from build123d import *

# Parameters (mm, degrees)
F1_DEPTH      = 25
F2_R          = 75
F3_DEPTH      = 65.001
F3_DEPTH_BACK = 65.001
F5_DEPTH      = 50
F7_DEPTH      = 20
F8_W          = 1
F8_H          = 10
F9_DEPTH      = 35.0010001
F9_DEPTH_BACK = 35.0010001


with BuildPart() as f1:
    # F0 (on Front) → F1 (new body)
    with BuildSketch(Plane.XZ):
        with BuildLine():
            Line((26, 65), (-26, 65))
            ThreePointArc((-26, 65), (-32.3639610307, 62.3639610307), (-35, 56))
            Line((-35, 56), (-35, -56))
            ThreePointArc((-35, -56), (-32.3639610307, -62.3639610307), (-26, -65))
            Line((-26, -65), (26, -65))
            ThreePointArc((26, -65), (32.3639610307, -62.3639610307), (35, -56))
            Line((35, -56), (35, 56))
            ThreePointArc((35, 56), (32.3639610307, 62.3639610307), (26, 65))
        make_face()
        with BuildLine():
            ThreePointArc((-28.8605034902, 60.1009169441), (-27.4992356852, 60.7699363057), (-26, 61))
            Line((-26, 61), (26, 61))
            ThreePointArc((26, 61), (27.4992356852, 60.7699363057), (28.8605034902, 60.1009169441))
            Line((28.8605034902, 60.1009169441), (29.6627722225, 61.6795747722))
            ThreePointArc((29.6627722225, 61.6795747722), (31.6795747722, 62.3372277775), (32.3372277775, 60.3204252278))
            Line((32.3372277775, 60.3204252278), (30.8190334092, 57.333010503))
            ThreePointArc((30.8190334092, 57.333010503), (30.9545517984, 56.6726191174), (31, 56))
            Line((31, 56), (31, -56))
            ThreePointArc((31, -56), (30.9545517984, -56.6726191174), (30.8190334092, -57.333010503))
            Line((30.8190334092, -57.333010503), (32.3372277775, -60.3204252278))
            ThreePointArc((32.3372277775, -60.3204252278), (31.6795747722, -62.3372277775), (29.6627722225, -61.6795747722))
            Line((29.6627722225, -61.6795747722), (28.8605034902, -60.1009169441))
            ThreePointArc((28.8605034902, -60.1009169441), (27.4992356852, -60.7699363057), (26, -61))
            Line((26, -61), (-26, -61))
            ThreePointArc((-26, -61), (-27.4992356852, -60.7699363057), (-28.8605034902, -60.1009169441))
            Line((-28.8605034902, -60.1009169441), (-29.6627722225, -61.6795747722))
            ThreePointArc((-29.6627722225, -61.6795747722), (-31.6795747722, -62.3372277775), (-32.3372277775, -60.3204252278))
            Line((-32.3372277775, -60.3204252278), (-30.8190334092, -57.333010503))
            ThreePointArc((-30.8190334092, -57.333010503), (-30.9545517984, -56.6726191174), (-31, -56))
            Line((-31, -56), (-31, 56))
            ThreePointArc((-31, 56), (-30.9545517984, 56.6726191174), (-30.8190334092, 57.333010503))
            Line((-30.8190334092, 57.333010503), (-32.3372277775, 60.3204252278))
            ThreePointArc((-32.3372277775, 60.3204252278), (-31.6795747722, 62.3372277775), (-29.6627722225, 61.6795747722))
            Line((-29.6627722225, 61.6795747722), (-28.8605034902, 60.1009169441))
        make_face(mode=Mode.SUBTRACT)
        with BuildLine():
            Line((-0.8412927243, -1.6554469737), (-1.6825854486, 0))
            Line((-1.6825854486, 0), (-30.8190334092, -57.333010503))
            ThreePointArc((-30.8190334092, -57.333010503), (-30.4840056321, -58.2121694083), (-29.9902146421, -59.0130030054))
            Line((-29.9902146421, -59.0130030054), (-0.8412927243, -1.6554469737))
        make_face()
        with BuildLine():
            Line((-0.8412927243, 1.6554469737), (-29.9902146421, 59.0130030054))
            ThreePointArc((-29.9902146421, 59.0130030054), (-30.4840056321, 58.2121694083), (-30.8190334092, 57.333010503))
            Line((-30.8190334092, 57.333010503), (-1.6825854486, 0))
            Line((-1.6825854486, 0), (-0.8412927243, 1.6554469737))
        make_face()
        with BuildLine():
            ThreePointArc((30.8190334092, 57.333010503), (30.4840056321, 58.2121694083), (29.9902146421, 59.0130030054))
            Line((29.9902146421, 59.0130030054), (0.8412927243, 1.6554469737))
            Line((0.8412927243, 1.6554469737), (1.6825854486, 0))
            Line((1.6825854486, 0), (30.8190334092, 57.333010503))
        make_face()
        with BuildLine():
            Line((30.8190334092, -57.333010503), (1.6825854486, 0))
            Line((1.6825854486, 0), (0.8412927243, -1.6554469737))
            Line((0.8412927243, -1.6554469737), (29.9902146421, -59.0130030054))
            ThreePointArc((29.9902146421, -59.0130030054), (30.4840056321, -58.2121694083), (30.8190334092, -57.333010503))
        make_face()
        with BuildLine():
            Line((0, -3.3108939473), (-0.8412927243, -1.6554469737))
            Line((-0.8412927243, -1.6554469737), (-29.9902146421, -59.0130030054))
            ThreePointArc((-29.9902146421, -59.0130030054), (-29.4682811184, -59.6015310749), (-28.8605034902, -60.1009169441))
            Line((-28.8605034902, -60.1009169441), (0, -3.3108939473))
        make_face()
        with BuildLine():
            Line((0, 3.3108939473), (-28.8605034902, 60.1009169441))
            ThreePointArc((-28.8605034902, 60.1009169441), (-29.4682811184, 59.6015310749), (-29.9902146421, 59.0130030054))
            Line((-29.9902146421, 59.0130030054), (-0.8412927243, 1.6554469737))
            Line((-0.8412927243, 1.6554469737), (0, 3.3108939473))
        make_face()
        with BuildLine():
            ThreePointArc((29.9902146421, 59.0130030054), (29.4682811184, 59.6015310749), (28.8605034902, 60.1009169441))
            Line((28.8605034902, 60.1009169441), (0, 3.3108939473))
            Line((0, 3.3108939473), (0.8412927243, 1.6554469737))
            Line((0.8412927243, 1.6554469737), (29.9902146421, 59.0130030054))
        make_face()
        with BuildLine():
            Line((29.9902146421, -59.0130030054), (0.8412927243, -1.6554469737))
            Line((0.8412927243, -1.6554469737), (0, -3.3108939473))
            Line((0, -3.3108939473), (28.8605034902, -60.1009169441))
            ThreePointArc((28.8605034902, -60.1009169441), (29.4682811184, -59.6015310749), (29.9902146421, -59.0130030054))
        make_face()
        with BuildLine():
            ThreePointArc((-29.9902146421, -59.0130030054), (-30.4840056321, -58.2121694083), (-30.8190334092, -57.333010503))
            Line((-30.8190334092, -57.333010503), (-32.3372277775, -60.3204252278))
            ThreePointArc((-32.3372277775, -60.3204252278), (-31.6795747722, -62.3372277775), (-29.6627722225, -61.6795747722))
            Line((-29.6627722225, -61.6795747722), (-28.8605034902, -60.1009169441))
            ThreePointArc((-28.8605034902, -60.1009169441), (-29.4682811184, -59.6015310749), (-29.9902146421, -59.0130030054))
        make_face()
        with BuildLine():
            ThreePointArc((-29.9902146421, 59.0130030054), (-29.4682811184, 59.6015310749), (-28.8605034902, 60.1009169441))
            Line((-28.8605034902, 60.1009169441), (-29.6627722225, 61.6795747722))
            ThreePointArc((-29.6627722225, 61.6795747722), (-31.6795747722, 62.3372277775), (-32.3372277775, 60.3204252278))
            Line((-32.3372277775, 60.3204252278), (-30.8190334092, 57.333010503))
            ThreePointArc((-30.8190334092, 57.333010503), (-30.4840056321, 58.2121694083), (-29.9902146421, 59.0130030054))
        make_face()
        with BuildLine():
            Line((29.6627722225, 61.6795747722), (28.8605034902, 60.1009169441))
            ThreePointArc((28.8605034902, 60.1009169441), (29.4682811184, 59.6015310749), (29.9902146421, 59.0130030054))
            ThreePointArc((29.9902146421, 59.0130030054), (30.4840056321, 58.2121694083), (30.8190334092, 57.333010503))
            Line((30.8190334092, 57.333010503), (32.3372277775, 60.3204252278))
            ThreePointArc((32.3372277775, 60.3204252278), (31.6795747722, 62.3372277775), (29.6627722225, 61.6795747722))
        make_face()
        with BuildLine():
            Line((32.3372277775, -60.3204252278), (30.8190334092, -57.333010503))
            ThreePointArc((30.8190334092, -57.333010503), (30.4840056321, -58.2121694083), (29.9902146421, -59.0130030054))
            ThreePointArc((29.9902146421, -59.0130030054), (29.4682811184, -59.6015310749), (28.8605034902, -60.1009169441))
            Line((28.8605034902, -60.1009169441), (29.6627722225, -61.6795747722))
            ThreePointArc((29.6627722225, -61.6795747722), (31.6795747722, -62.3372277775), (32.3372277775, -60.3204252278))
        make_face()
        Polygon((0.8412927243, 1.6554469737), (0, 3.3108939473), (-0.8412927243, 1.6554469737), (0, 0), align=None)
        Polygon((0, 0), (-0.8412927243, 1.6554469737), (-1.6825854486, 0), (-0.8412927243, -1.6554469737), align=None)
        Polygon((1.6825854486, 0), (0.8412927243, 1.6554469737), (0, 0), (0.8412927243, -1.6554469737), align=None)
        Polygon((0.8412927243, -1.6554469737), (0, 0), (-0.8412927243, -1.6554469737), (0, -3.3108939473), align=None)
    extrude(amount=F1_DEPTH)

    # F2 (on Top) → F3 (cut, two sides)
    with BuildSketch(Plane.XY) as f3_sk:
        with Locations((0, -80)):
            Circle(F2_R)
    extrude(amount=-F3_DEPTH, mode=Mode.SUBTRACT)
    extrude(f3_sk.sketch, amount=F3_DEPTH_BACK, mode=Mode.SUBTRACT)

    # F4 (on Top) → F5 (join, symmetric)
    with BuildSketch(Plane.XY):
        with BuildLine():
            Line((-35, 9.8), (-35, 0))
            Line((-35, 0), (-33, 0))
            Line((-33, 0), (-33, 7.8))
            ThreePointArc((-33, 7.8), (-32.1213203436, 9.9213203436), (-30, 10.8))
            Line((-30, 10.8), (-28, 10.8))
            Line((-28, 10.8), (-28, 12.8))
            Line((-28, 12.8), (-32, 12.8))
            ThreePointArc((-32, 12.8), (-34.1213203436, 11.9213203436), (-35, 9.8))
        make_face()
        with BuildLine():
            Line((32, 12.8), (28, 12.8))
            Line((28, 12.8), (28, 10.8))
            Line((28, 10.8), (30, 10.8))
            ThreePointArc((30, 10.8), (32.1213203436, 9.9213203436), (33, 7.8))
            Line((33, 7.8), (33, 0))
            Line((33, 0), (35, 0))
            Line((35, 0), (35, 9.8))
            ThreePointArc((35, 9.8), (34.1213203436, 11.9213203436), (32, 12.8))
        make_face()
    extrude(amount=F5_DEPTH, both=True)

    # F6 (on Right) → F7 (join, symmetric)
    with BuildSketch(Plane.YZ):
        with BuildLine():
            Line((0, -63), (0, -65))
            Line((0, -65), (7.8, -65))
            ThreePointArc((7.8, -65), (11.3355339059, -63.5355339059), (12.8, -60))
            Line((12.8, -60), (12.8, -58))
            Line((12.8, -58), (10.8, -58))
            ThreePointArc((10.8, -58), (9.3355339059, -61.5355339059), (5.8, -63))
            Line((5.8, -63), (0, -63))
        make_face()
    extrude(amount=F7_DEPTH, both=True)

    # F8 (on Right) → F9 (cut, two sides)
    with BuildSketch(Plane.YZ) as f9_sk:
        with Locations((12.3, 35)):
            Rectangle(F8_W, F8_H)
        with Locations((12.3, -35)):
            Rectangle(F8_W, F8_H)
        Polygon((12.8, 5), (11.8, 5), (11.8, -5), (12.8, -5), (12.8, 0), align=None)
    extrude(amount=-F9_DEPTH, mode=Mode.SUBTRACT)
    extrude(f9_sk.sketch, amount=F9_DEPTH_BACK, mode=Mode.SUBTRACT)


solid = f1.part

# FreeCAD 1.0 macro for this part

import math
import FreeCAD as App
import Part
import Sketcher

V = App.Vector
Q = App.Units.Quantity

doc = App.newDocument("Part")
params = doc.addObject("Spreadsheet::Sheet", "Params")
for row, (alias, value) in enumerate([
    ("sketch1_radius", "9 mm"),
    ("sketch1_radius2", "5 mm"),
    ("sketch1_width", "52 mm"),
    ("sketch1_height", "112 mm"),
    ("pad1_length", "25 mm"),
    ("sketch2_diameter", "150 mm"),
    ("sketch3_radius", "3 mm"),
    ("sketch3_width", "2 mm"),
    ("sketch3_height", "9.8 mm"),
    ("pad2_length", "100 mm"),
    ("sketch4_radius", "5 mm"),
    ("sketch4_width", "2 mm"),
    ("sketch4_width2", "7.8 mm"),
    ("pad3_length", "40 mm"),
    ("sketch5_width", "1 mm"),
    ("sketch5_height", "10 mm"),
], start=1):
    params.set(f"A{row}", alias)
    params.set(f"B{row}", "=" + value)
    params.setAlias(f"B{row}", alias)

body = doc.addObject("PartDesign::Body", "Body")

# Sketch on XZ plane
sketch1 = doc.addObject("Sketcher::SketchObject", "Sketch")
body.addObject(sketch1)
sketch1.AttachmentSupport = (doc.XZ_Plane, [""])
sketch1.MapMode = "FlatFace"
sketch1.addGeometry([
    Part.LineSegment(V(26, 65, 0), V(-26, 65, 0)),  # 0
    Part.ArcOfCircle(Part.Circle(V(-26, 56, 0), V(0, 0, 1), 9), math.radians(90), math.radians(180)),  # 1
    Part.LineSegment(V(-35, 56, 0), V(-35, -56, 0)),  # 2
    Part.ArcOfCircle(Part.Circle(V(-26, -56, 0), V(0, 0, 1), 9), math.radians(180), math.radians(270)),  # 3
    Part.LineSegment(V(-26, -65, 0), V(26, -65, 0)),  # 4
    Part.ArcOfCircle(Part.Circle(V(26, -56, 0), V(0, 0, 1), 9), math.radians(-90), math.radians(0)),  # 5
    Part.LineSegment(V(35, -56, 0), V(35, 56, 0)),  # 6
    Part.ArcOfCircle(Part.Circle(V(26, 56, 0), V(0, 0, 1), 9), math.radians(0), math.radians(90)),  # 7
    Part.LineSegment(V(-28.9, -60.1, 0), V(0, -3.3, 0)),  # 8
    Part.LineSegment(V(0, -3.3, 0), V(28.9, -60.1, 0)),  # 9
    Part.ArcOfCircle(Part.Circle(V(26, -56, 0), V(0, 0, 1), 5), math.radians(-90), math.radians(-55)),  # 10
    Part.LineSegment(V(26, -61, 0), V(-26, -61, 0)),  # 11
    Part.ArcOfCircle(Part.Circle(V(-26, -56, 0), V(0, 0, 1), 5), math.radians(-125), math.radians(-90)),  # 12
    Part.LineSegment(V(-30.8, 57.3, 0), V(-1.7, 0, 0)),  # 13
    Part.LineSegment(V(-1.7, 0, 0), V(-30.8, -57.3, 0)),  # 14
    Part.ArcOfCircle(Part.Circle(V(-26, -56, 0), V(0, 0, 1), 5), math.radians(180), math.radians(195.46)),  # 15
    Part.LineSegment(V(-31, -56, 0), V(-31, 56, 0)),  # 16
    Part.ArcOfCircle(Part.Circle(V(-26, 56, 0), V(0, 0, 1), 5), math.radians(164.54), math.radians(180)),  # 17
    Part.LineSegment(V(30.8, -57.3, 0), V(1.7, 0, 0)),  # 18
    Part.LineSegment(V(1.7, 0, 0), V(30.8, 57.3, 0)),  # 19
    Part.ArcOfCircle(Part.Circle(V(26, 56, 0), V(0, 0, 1), 5), math.radians(0), math.radians(15.46)),  # 20
    Part.LineSegment(V(31, 56, 0), V(31, -56, 0)),  # 21
    Part.ArcOfCircle(Part.Circle(V(26, -56, 0), V(0, 0, 1), 5), math.radians(-15.46), math.radians(0)),  # 22
    Part.LineSegment(V(28.9, 60.1, 0), V(0, 3.3, 0)),  # 23
    Part.LineSegment(V(0, 3.3, 0), V(-28.9, 60.1, 0)),  # 24
    Part.ArcOfCircle(Part.Circle(V(-26, 56, 0), V(0, 0, 1), 5), math.radians(90), math.radians(125)),  # 25
    Part.LineSegment(V(-26, 61, 0), V(26, 61, 0)),  # 26
    Part.ArcOfCircle(Part.Circle(V(26, 56, 0), V(0, 0, 1), 5), math.radians(55), math.radians(90)),  # 27
], False)
sketch1.addConstraint([
    Sketcher.Constraint("Tangent", 0, 2, 1, 1),
    Sketcher.Constraint("Tangent", 1, 2, 2, 1),
    Sketcher.Constraint("Tangent", 2, 2, 3, 1),
    Sketcher.Constraint("Tangent", 3, 2, 4, 1),
    Sketcher.Constraint("Tangent", 4, 2, 5, 1),
    Sketcher.Constraint("Tangent", 5, 2, 6, 1),
    Sketcher.Constraint("Tangent", 6, 2, 7, 1),
    Sketcher.Constraint("Tangent", 7, 2, 0, 1),
    Sketcher.Constraint("Coincident", 8, 2, 9, 1),
    Sketcher.Constraint("Coincident", 9, 2, 10, 2),
    Sketcher.Constraint("Tangent", 10, 1, 11, 1),
    Sketcher.Constraint("Tangent", 11, 2, 12, 2),
    Sketcher.Constraint("Coincident", 12, 1, 8, 1),
    Sketcher.Constraint("Coincident", 13, 2, 14, 1),
    Sketcher.Constraint("Coincident", 14, 2, 15, 2),
    Sketcher.Constraint("Tangent", 15, 1, 16, 1),
    Sketcher.Constraint("Tangent", 16, 2, 17, 2),
    Sketcher.Constraint("Coincident", 17, 1, 13, 1),
    Sketcher.Constraint("Coincident", 18, 2, 19, 1),
    Sketcher.Constraint("Coincident", 19, 2, 20, 2),
    Sketcher.Constraint("Tangent", 20, 1, 21, 1),
    Sketcher.Constraint("Tangent", 21, 2, 22, 2),
    Sketcher.Constraint("Coincident", 22, 1, 18, 1),
    Sketcher.Constraint("Coincident", 23, 2, 24, 1),
    Sketcher.Constraint("Coincident", 24, 2, 25, 2),
    Sketcher.Constraint("Tangent", 25, 1, 26, 1),
    Sketcher.Constraint("Tangent", 26, 2, 27, 2),
    Sketcher.Constraint("Coincident", 27, 1, 23, 1),
    Sketcher.Constraint("Horizontal", 0),
    Sketcher.Constraint("Vertical", 2),
    Sketcher.Constraint("Horizontal", 4),
    Sketcher.Constraint("Vertical", 6),
    Sketcher.Constraint("Horizontal", 11),
    Sketcher.Constraint("Vertical", 16),
    Sketcher.Constraint("Vertical", 21),
    Sketcher.Constraint("Horizontal", 26),
    Sketcher.Constraint("Coincident", 10, 3, 5, 3),
    Sketcher.Constraint("Coincident", 12, 3, 3, 3),
    Sketcher.Constraint("Coincident", 15, 3, 3, 3),
    Sketcher.Constraint("Coincident", 17, 3, 1, 3),
    Sketcher.Constraint("Coincident", 20, 3, 7, 3),
    Sketcher.Constraint("Coincident", 22, 3, 5, 3),
    Sketcher.Constraint("Coincident", 25, 3, 1, 3),
    Sketcher.Constraint("Coincident", 27, 3, 7, 3),
    Sketcher.Constraint("Equal", 1, 3),
    Sketcher.Constraint("Equal", 3, 5),
    Sketcher.Constraint("Equal", 5, 7),
    Sketcher.Constraint("Equal", 12, 15),
    Sketcher.Constraint("Equal", 17, 20),
    Sketcher.Constraint("Equal", 22, 25),
    Sketcher.Constraint("Symmetric", 1, 3, 5, 3, -1, 1),
    Sketcher.Constraint("Symmetric", 13, 2, 18, 2, -1, 1),
    Sketcher.Constraint("Symmetric", 8, 2, 23, 2, -1, 1),
    Sketcher.Constraint("PointOnObject", 8, 2, -2),
    Sketcher.Constraint("PointOnObject", 13, 2, -1),
    Sketcher.Constraint("Parallel", 9, 13),
    Sketcher.Constraint("Parallel", 8, 14),
    Sketcher.Constraint("Parallel", 13, 18),
    Sketcher.Constraint("Parallel", 14, 19),
    Sketcher.Constraint("Parallel", 19, 23),
    Sketcher.Constraint("Parallel", 18, 24),
    Sketcher.Constraint("Horizontal", 9, 2, 12, 1),
    Sketcher.Constraint("Radius", 1, Q("9 mm")),
    Sketcher.Constraint("Radius", 10, Q("5 mm")),
    Sketcher.Constraint("DistanceX", 0, 2, 0, 1, Q("52 mm")),
    Sketcher.Constraint("DistanceY", 2, 2, 2, 1, Q("112 mm")),
    Sketcher.Constraint("Distance", 8, Q("63.702711 mm")),
    Sketcher.Constraint("DistanceY", 14, 2, -1, 1, Q("57.333011 mm")),
    Sketcher.Constraint("DistanceX", 14, 2, 12, 1, Q("1.95853 mm")),
])
sketch1.setExpression("Constraints[62]", "Params.sketch1_radius")
sketch1.setExpression("Constraints[63]", "Params.sketch1_radius2")
sketch1.setExpression("Constraints[64]", "Params.sketch1_width")
sketch1.setExpression("Constraints[65]", "Params.sketch1_height")
pad1 = doc.addObject("PartDesign::Pad", "Pad")
body.addObject(pad1)
pad1.Profile = sketch1
pad1.setExpression("Length", "Params.pad1_length")

# Sketch on XY plane
sketch2 = doc.addObject("Sketcher::SketchObject", "Sketch001")
body.addObject(sketch2)
sketch2.AttachmentSupport = (doc.XY_Plane, [""])
sketch2.MapMode = "FlatFace"
sketch2.addGeometry(Part.Circle(V(0, -80, 0), V(0, 0, 1), 75), False)
sketch2.addConstraint([
    Sketcher.Constraint("PointOnObject", 0, 3, -2),
    Sketcher.Constraint("Diameter", 0, Q("150 mm")),
    Sketcher.Constraint("DistanceY", 0, 3, -1, 1, Q("80 mm")),
])
sketch2.setExpression("Constraints[1]", "Params.sketch2_diameter")
pocket1 = doc.addObject("PartDesign::Pocket", "Pocket")
body.addObject(pocket1)
pocket1.Profile = sketch2
pocket1.Type = "ThroughAll"
pocket1.Midplane = True

# Sketch on XY plane
sketch3 = doc.addObject("Sketcher::SketchObject", "Sketch002")
body.addObject(sketch3)
sketch3.AttachmentSupport = (doc.XY_Plane, [""])
sketch3.MapMode = "FlatFace"
sketch3.addGeometry([
    Part.LineSegment(V(-35, 9.8, 0), V(-35, 0, 0)),  # 0
    Part.LineSegment(V(-35, 0, 0), V(-33, 0, 0)),  # 1
    Part.LineSegment(V(-33, 0, 0), V(-33, 7.8, 0)),  # 2
    Part.ArcOfCircle(Part.Circle(V(-30, 7.8, 0), V(0, 0, 1), 3), math.radians(90), math.radians(180)),  # 3
    Part.LineSegment(V(-30, 10.8, 0), V(-28, 10.8, 0)),  # 4
    Part.LineSegment(V(-28, 10.8, 0), V(-28, 12.8, 0)),  # 5
    Part.LineSegment(V(-28, 12.8, 0), V(-32, 12.8, 0)),  # 6
    Part.ArcOfCircle(Part.Circle(V(-32, 9.8, 0), V(0, 0, 1), 3), math.radians(90), math.radians(180)),  # 7
    Part.LineSegment(V(32, 12.8, 0), V(28, 12.8, 0)),  # 8
    Part.LineSegment(V(28, 12.8, 0), V(28, 10.8, 0)),  # 9
    Part.LineSegment(V(28, 10.8, 0), V(30, 10.8, 0)),  # 10
    Part.ArcOfCircle(Part.Circle(V(30, 7.8, 0), V(0, 0, 1), 3), math.radians(0), math.radians(90)),  # 11
    Part.LineSegment(V(33, 7.8, 0), V(33, 0, 0)),  # 12
    Part.LineSegment(V(33, 0, 0), V(35, 0, 0)),  # 13
    Part.LineSegment(V(35, 0, 0), V(35, 9.8, 0)),  # 14
    Part.ArcOfCircle(Part.Circle(V(32, 9.8, 0), V(0, 0, 1), 3), math.radians(0), math.radians(90)),  # 15
], False)
sketch3.addConstraint([
    Sketcher.Constraint("Coincident", 0, 2, 1, 1),
    Sketcher.Constraint("Coincident", 1, 2, 2, 1),
    Sketcher.Constraint("Tangent", 2, 2, 3, 2),
    Sketcher.Constraint("Tangent", 3, 1, 4, 1),
    Sketcher.Constraint("Coincident", 4, 2, 5, 1),
    Sketcher.Constraint("Coincident", 5, 2, 6, 1),
    Sketcher.Constraint("Tangent", 6, 2, 7, 1),
    Sketcher.Constraint("Tangent", 7, 2, 0, 1),
    Sketcher.Constraint("Coincident", 8, 2, 9, 1),
    Sketcher.Constraint("Coincident", 9, 2, 10, 1),
    Sketcher.Constraint("Tangent", 10, 2, 11, 2),
    Sketcher.Constraint("Tangent", 11, 1, 12, 1),
    Sketcher.Constraint("Coincident", 12, 2, 13, 1),
    Sketcher.Constraint("Coincident", 13, 2, 14, 1),
    Sketcher.Constraint("Tangent", 14, 2, 15, 1),
    Sketcher.Constraint("Tangent", 15, 2, 8, 1),
    Sketcher.Constraint("Vertical", 0),
    Sketcher.Constraint("Horizontal", 1),
    Sketcher.Constraint("Vertical", 2),
    Sketcher.Constraint("Horizontal", 4),
    Sketcher.Constraint("Vertical", 5),
    Sketcher.Constraint("Horizontal", 6),
    Sketcher.Constraint("Horizontal", 8),
    Sketcher.Constraint("Vertical", 9),
    Sketcher.Constraint("Horizontal", 10),
    Sketcher.Constraint("Vertical", 12),
    Sketcher.Constraint("Horizontal", 13),
    Sketcher.Constraint("Vertical", 14),
    Sketcher.Constraint("Equal", 3, 7),
    Sketcher.Constraint("Equal", 7, 11),
    Sketcher.Constraint("Equal", 11, 15),
    Sketcher.Constraint("Symmetric", 1, 2, 12, 2, -1, 1),
    Sketcher.Constraint("Symmetric", 7, 3, 15, 3, -2),
    Sketcher.Constraint("Symmetric", 4, 2, 9, 2, -2),
    Sketcher.Constraint("PointOnObject", 0, 2, -1),
    Sketcher.Constraint("Equal", 1, 4),
    Sketcher.Constraint("Equal", 13, 5),
    Sketcher.Constraint("Radius", 3, Q("3 mm")),
    Sketcher.Constraint("DistanceX", 1, 1, 1, 2, Q("2 mm")),
    Sketcher.Constraint("DistanceY", 0, 2, 0, 1, Q("9.8 mm")),
    Sketcher.Constraint("DistanceX", 3, 3, -1, 1, Q("30 mm")),
])
sketch3.setExpression("Constraints[37]", "Params.sketch3_radius")
sketch3.setExpression("Constraints[38]", "Params.sketch3_width")
sketch3.setExpression("Constraints[39]", "Params.sketch3_height")
pad2 = doc.addObject("PartDesign::Pad", "Pad001")
body.addObject(pad2)
pad2.Profile = sketch3
pad2.setExpression("Length", "Params.pad2_length")
pad2.Midplane = True

# Sketch on YZ plane
sketch4 = doc.addObject("Sketcher::SketchObject", "Sketch003")
body.addObject(sketch4)
sketch4.AttachmentSupport = (doc.YZ_Plane, [""])
sketch4.MapMode = "FlatFace"
sketch4.addGeometry([
    Part.LineSegment(V(0, -63, 0), V(0, -65, 0)),  # 0
    Part.LineSegment(V(0, -65, 0), V(7.8, -65, 0)),  # 1
    Part.ArcOfCircle(Part.Circle(V(7.8, -60, 0), V(0, 0, 1), 5), math.radians(-90), math.radians(0)),  # 2
    Part.LineSegment(V(12.8, -60, 0), V(12.8, -58, 0)),  # 3
    Part.LineSegment(V(12.8, -58, 0), V(10.8, -58, 0)),  # 4
    Part.ArcOfCircle(Part.Circle(V(5.8, -58, 0), V(0, 0, 1), 5), math.radians(-90), math.radians(0)),  # 5
    Part.LineSegment(V(5.8, -63, 0), V(0, -63, 0)),  # 6
], False)
sketch4.addConstraint([
    Sketcher.Constraint("Coincident", 0, 2, 1, 1),
    Sketcher.Constraint("Tangent", 1, 2, 2, 1),
    Sketcher.Constraint("Tangent", 2, 2, 3, 1),
    Sketcher.Constraint("Coincident", 3, 2, 4, 1),
    Sketcher.Constraint("Coincident", 4, 2, 5, 2),
    Sketcher.Constraint("Tangent", 5, 1, 6, 1),
    Sketcher.Constraint("Coincident", 6, 2, 0, 1),
    Sketcher.Constraint("Vertical", 0),
    Sketcher.Constraint("Horizontal", 1),
    Sketcher.Constraint("Vertical", 3),
    Sketcher.Constraint("Horizontal", 4),
    Sketcher.Constraint("Horizontal", 6),
    Sketcher.Constraint("Equal", 2, 5),
    Sketcher.Constraint("PointOnObject", 0, 2, -2),
    Sketcher.Constraint("Horizontal", 5, 3, 3, 2),
    Sketcher.Constraint("Equal", 4, 0),
    Sketcher.Constraint("Radius", 2, Q("5 mm")),
    Sketcher.Constraint("DistanceX", 4, 2, 4, 1, Q("2 mm")),
    Sketcher.Constraint("DistanceX", 1, 1, 1, 2, Q("7.8 mm")),
    Sketcher.Constraint("DistanceY", 2, 3, -1, 1, Q("60 mm")),
])
sketch4.setExpression("Constraints[16]", "Params.sketch4_radius")
sketch4.setExpression("Constraints[17]", "Params.sketch4_width")
sketch4.setExpression("Constraints[18]", "Params.sketch4_width2")
pad3 = doc.addObject("PartDesign::Pad", "Pad002")
body.addObject(pad3)
pad3.Profile = sketch4
pad3.setExpression("Length", "Params.pad3_length")
pad3.Midplane = True

# Sketch on YZ plane
sketch5 = doc.addObject("Sketcher::SketchObject", "Sketch004")
body.addObject(sketch5)
sketch5.AttachmentSupport = (doc.YZ_Plane, [""])
sketch5.MapMode = "FlatFace"
sketch5.addGeometry([
    Part.LineSegment(V(11.8, 40, 0), V(11.8, 30, 0)),  # 0
    Part.LineSegment(V(11.8, 30, 0), V(12.8, 30, 0)),  # 1
    Part.LineSegment(V(12.8, 30, 0), V(12.8, 40, 0)),  # 2
    Part.LineSegment(V(12.8, 40, 0), V(11.8, 40, 0)),  # 3
    Part.LineSegment(V(11.8, -30, 0), V(11.8, -40, 0)),  # 4
    Part.LineSegment(V(11.8, -40, 0), V(12.8, -40, 0)),  # 5
    Part.LineSegment(V(12.8, -40, 0), V(12.8, -30, 0)),  # 6
    Part.LineSegment(V(12.8, -30, 0), V(11.8, -30, 0)),  # 7
    Part.LineSegment(V(12.8, 5, 0), V(11.8, 5, 0)),  # 8
    Part.LineSegment(V(11.8, 5, 0), V(11.8, -5, 0)),  # 9
    Part.LineSegment(V(11.8, -5, 0), V(12.8, -5, 0)),  # 10
    Part.LineSegment(V(12.8, -5, 0), V(12.8, 5, 0)),  # 11
], False)
sketch5.addConstraint([
    Sketcher.Constraint("Coincident", 0, 2, 1, 1),
    Sketcher.Constraint("Coincident", 1, 2, 2, 1),
    Sketcher.Constraint("Coincident", 2, 2, 3, 1),
    Sketcher.Constraint("Coincident", 3, 2, 0, 1),
    Sketcher.Constraint("Coincident", 4, 2, 5, 1),
    Sketcher.Constraint("Coincident", 5, 2, 6, 1),
    Sketcher.Constraint("Coincident", 6, 2, 7, 1),
    Sketcher.Constraint("Coincident", 7, 2, 4, 1),
    Sketcher.Constraint("Coincident", 8, 2, 9, 1),
    Sketcher.Constraint("Coincident", 9, 2, 10, 1),
    Sketcher.Constraint("Coincident", 10, 2, 11, 1),
    Sketcher.Constraint("Coincident", 11, 2, 8, 1),
    Sketcher.Constraint("Vertical", 0),
    Sketcher.Constraint("Horizontal", 1),
    Sketcher.Constraint("Vertical", 2),
    Sketcher.Constraint("Horizontal", 3),
    Sketcher.Constraint("Vertical", 4),
    Sketcher.Constraint("Horizontal", 5),
    Sketcher.Constraint("Vertical", 6),
    Sketcher.Constraint("Horizontal", 7),
    Sketcher.Constraint("Horizontal", 8),
    Sketcher.Constraint("Vertical", 9),
    Sketcher.Constraint("Horizontal", 10),
    Sketcher.Constraint("Vertical", 11),
    Sketcher.Constraint("Symmetric", 3, 2, 4, 2, -1),
    Sketcher.Constraint("Symmetric", 1, 2, 6, 2, -1),
    Sketcher.Constraint("Vertical", 7, 2, 8, 2),
    Sketcher.Constraint("Vertical", 6, 2, 10, 2),
    Sketcher.Constraint("Equal", 6, 9),
    Sketcher.Constraint("DistanceX", 1, 1, 1, 2, Q("1 mm")),
    Sketcher.Constraint("DistanceY", 0, 2, 0, 1, Q("10 mm")),
    Sketcher.Constraint("DistanceY", -1, 1, 0, 2, Q("30 mm")),
    Sketcher.Constraint("DistanceY", -1, 1, 8, 2, Q("5 mm")),
    Sketcher.Constraint("DistanceX", -1, 1, 0, 2, Q("11.8 mm")),
])
sketch5.setExpression("Constraints[29]", "Params.sketch5_width")
sketch5.setExpression("Constraints[30]", "Params.sketch5_height")
pocket2 = doc.addObject("PartDesign::Pocket", "Pocket001")
body.addObject(pocket2)
pocket2.Profile = sketch5
pocket2.Type = "ThroughAll"
pocket2.Midplane = True

doc.recompute()
